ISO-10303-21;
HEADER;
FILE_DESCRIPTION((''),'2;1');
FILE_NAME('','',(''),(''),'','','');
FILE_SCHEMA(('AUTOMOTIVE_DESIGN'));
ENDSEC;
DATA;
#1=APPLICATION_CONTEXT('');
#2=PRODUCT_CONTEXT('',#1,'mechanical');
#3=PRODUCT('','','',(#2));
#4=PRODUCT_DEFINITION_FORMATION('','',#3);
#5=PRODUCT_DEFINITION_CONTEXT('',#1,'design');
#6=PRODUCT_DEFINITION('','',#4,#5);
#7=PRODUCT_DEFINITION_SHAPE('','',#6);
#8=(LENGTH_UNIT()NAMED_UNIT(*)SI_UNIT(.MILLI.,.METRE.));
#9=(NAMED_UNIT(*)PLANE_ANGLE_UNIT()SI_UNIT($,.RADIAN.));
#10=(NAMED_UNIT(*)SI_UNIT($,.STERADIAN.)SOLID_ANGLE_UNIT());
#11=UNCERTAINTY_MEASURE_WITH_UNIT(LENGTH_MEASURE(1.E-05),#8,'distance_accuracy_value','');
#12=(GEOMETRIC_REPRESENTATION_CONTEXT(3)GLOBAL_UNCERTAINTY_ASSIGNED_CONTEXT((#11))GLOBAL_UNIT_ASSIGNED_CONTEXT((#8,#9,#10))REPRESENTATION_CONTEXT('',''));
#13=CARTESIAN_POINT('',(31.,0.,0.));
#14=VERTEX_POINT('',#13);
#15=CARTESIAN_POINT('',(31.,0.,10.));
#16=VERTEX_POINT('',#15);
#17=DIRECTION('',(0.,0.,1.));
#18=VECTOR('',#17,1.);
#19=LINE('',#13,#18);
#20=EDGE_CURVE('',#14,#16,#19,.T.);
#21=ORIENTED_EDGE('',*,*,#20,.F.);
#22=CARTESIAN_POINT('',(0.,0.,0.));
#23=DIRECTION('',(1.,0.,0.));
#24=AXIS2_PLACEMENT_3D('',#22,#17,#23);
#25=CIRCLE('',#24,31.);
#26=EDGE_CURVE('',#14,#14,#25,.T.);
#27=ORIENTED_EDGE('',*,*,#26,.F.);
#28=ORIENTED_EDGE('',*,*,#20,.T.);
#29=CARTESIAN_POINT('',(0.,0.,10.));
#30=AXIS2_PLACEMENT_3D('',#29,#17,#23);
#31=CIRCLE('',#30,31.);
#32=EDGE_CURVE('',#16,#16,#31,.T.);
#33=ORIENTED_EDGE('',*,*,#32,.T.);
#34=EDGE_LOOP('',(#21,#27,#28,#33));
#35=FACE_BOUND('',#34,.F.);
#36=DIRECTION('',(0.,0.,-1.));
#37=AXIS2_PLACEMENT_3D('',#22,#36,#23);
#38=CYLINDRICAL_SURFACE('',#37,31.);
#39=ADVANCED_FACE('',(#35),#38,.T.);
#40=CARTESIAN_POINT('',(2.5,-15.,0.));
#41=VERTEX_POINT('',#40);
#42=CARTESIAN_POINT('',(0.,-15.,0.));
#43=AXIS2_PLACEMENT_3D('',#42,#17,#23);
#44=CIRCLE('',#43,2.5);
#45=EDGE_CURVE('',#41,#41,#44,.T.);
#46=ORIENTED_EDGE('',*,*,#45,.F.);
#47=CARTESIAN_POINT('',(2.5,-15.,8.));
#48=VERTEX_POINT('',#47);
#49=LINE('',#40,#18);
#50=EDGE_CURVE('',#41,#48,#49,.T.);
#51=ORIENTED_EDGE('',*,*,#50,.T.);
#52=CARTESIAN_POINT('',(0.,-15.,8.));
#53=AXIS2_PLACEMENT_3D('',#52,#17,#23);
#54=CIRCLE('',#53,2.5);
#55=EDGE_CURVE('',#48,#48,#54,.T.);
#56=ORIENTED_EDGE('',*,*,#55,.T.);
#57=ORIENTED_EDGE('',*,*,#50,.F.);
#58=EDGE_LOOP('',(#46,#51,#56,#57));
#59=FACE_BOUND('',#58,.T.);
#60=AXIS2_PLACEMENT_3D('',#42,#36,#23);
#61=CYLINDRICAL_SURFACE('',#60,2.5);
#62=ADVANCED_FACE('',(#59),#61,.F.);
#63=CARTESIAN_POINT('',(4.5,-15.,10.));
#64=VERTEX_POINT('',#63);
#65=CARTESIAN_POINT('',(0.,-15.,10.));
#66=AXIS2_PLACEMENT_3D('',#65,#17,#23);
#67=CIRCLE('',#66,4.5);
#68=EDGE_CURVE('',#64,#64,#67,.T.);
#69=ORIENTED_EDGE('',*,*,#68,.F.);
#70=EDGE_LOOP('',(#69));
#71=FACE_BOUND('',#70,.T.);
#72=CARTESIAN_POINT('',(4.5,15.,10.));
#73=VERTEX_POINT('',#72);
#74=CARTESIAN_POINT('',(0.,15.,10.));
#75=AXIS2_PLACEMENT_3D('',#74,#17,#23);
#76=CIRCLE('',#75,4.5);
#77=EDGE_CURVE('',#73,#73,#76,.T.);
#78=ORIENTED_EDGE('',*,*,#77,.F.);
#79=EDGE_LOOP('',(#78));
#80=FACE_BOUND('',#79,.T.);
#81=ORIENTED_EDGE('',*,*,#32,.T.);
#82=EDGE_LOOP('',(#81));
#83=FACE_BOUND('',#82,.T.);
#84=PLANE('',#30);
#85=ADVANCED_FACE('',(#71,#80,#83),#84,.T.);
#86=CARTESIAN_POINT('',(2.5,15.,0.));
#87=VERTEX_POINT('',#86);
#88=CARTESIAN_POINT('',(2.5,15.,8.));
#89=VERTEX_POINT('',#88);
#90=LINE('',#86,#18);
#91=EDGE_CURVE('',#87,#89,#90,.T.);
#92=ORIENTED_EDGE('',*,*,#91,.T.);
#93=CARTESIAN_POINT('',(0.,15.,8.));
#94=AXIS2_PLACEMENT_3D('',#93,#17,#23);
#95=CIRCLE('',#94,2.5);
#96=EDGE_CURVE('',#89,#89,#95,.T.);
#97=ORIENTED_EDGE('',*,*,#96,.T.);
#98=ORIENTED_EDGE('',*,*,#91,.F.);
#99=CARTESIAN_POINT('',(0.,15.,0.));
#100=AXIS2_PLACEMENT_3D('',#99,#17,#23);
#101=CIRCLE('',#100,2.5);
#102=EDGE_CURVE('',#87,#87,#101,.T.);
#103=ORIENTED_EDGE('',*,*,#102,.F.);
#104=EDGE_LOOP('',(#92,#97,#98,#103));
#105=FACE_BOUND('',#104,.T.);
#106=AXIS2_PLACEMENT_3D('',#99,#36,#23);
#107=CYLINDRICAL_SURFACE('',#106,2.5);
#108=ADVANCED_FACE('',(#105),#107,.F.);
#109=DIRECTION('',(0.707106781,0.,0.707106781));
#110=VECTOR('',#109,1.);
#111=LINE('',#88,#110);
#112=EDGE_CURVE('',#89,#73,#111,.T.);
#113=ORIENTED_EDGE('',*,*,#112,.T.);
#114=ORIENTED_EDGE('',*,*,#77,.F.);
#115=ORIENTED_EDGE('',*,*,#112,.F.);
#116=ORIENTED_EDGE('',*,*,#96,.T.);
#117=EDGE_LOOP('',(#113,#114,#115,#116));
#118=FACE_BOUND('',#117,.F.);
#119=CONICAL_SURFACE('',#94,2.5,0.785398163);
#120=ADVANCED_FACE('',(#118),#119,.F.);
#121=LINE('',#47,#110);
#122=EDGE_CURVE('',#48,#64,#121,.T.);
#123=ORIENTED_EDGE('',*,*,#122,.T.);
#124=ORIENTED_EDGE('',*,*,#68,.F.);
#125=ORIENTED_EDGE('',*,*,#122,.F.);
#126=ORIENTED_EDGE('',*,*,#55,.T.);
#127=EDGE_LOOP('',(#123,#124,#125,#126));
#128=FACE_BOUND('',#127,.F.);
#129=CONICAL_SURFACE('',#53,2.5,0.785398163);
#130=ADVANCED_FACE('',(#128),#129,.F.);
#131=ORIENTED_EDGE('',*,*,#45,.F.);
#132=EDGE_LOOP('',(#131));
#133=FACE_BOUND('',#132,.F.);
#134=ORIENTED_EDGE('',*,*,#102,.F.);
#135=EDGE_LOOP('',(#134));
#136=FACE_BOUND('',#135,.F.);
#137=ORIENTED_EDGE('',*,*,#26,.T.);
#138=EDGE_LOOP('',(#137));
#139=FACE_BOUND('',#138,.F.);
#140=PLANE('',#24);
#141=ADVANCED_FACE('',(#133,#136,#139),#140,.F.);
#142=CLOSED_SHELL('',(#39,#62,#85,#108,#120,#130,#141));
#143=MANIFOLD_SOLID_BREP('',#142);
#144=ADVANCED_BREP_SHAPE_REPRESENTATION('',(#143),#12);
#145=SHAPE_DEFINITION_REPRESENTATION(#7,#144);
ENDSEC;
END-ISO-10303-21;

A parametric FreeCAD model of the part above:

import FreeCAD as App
import Part
import Sketcher
from FreeCAD import Vector


def edges_at(feature, points):
    """Names of the edges that pass closest to the given points."""
    edges = feature.Shape.Edges
    near = lambda p: min(range(len(edges)), key=lambda i: edges[i].distToShape(Part.Vertex(*p))[0])
    return sorted({f"Edge{near(p) + 1}" for p in points})

doc = App.newDocument("Part")
body = doc.addObject("PartDesign::Body", "Body")

# Sketch on XY plane
sketch1 = body.newObject("Sketcher::SketchObject", "Sketch")
sketch1.AttachmentSupport = (doc.getObject("XY_Plane"), [""])
sketch1.MapMode = "FlatFace"
sketch1.addGeometry([
    Part.Circle(Vector(0, 0, 0), Vector(0, 0, 1), 31),
    Part.Circle(Vector(0, -15, 0), Vector(0, 0, 1), 2.5),
    Part.Circle(Vector(0, 15, 0), Vector(0, 0, 1), 2.5),
], False)
sketch1.addConstraint([
    Sketcher.Constraint("Coincident", 0, 3, -1, 1),
    Sketcher.Constraint("Equal", 1, 2),
    Sketcher.Constraint("Symmetric", 1, 3, 2, 3, -1, 1),
    Sketcher.Constraint("PointOnObject", 1, 3, -2),
    Sketcher.Constraint("Diameter", 0, 62.0),
    Sketcher.Constraint("Diameter", 1, 5.0),
    Sketcher.Constraint("DistanceY", 1, 3, -1, 1, 15.0),
])
pad1 = body.newObject("PartDesign::Pad", "Pad")
pad1.Profile = sketch1
pad1.Length = 10
doc.recompute()

chamfer = body.newObject("PartDesign::Chamfer", "Chamfer")
chamfer.Base = (pad1, edges_at(pad1, [(-2.5, 15, 10), (-2.5, -15, 10)]))
chamfer.Size = 2

doc.recompute()
